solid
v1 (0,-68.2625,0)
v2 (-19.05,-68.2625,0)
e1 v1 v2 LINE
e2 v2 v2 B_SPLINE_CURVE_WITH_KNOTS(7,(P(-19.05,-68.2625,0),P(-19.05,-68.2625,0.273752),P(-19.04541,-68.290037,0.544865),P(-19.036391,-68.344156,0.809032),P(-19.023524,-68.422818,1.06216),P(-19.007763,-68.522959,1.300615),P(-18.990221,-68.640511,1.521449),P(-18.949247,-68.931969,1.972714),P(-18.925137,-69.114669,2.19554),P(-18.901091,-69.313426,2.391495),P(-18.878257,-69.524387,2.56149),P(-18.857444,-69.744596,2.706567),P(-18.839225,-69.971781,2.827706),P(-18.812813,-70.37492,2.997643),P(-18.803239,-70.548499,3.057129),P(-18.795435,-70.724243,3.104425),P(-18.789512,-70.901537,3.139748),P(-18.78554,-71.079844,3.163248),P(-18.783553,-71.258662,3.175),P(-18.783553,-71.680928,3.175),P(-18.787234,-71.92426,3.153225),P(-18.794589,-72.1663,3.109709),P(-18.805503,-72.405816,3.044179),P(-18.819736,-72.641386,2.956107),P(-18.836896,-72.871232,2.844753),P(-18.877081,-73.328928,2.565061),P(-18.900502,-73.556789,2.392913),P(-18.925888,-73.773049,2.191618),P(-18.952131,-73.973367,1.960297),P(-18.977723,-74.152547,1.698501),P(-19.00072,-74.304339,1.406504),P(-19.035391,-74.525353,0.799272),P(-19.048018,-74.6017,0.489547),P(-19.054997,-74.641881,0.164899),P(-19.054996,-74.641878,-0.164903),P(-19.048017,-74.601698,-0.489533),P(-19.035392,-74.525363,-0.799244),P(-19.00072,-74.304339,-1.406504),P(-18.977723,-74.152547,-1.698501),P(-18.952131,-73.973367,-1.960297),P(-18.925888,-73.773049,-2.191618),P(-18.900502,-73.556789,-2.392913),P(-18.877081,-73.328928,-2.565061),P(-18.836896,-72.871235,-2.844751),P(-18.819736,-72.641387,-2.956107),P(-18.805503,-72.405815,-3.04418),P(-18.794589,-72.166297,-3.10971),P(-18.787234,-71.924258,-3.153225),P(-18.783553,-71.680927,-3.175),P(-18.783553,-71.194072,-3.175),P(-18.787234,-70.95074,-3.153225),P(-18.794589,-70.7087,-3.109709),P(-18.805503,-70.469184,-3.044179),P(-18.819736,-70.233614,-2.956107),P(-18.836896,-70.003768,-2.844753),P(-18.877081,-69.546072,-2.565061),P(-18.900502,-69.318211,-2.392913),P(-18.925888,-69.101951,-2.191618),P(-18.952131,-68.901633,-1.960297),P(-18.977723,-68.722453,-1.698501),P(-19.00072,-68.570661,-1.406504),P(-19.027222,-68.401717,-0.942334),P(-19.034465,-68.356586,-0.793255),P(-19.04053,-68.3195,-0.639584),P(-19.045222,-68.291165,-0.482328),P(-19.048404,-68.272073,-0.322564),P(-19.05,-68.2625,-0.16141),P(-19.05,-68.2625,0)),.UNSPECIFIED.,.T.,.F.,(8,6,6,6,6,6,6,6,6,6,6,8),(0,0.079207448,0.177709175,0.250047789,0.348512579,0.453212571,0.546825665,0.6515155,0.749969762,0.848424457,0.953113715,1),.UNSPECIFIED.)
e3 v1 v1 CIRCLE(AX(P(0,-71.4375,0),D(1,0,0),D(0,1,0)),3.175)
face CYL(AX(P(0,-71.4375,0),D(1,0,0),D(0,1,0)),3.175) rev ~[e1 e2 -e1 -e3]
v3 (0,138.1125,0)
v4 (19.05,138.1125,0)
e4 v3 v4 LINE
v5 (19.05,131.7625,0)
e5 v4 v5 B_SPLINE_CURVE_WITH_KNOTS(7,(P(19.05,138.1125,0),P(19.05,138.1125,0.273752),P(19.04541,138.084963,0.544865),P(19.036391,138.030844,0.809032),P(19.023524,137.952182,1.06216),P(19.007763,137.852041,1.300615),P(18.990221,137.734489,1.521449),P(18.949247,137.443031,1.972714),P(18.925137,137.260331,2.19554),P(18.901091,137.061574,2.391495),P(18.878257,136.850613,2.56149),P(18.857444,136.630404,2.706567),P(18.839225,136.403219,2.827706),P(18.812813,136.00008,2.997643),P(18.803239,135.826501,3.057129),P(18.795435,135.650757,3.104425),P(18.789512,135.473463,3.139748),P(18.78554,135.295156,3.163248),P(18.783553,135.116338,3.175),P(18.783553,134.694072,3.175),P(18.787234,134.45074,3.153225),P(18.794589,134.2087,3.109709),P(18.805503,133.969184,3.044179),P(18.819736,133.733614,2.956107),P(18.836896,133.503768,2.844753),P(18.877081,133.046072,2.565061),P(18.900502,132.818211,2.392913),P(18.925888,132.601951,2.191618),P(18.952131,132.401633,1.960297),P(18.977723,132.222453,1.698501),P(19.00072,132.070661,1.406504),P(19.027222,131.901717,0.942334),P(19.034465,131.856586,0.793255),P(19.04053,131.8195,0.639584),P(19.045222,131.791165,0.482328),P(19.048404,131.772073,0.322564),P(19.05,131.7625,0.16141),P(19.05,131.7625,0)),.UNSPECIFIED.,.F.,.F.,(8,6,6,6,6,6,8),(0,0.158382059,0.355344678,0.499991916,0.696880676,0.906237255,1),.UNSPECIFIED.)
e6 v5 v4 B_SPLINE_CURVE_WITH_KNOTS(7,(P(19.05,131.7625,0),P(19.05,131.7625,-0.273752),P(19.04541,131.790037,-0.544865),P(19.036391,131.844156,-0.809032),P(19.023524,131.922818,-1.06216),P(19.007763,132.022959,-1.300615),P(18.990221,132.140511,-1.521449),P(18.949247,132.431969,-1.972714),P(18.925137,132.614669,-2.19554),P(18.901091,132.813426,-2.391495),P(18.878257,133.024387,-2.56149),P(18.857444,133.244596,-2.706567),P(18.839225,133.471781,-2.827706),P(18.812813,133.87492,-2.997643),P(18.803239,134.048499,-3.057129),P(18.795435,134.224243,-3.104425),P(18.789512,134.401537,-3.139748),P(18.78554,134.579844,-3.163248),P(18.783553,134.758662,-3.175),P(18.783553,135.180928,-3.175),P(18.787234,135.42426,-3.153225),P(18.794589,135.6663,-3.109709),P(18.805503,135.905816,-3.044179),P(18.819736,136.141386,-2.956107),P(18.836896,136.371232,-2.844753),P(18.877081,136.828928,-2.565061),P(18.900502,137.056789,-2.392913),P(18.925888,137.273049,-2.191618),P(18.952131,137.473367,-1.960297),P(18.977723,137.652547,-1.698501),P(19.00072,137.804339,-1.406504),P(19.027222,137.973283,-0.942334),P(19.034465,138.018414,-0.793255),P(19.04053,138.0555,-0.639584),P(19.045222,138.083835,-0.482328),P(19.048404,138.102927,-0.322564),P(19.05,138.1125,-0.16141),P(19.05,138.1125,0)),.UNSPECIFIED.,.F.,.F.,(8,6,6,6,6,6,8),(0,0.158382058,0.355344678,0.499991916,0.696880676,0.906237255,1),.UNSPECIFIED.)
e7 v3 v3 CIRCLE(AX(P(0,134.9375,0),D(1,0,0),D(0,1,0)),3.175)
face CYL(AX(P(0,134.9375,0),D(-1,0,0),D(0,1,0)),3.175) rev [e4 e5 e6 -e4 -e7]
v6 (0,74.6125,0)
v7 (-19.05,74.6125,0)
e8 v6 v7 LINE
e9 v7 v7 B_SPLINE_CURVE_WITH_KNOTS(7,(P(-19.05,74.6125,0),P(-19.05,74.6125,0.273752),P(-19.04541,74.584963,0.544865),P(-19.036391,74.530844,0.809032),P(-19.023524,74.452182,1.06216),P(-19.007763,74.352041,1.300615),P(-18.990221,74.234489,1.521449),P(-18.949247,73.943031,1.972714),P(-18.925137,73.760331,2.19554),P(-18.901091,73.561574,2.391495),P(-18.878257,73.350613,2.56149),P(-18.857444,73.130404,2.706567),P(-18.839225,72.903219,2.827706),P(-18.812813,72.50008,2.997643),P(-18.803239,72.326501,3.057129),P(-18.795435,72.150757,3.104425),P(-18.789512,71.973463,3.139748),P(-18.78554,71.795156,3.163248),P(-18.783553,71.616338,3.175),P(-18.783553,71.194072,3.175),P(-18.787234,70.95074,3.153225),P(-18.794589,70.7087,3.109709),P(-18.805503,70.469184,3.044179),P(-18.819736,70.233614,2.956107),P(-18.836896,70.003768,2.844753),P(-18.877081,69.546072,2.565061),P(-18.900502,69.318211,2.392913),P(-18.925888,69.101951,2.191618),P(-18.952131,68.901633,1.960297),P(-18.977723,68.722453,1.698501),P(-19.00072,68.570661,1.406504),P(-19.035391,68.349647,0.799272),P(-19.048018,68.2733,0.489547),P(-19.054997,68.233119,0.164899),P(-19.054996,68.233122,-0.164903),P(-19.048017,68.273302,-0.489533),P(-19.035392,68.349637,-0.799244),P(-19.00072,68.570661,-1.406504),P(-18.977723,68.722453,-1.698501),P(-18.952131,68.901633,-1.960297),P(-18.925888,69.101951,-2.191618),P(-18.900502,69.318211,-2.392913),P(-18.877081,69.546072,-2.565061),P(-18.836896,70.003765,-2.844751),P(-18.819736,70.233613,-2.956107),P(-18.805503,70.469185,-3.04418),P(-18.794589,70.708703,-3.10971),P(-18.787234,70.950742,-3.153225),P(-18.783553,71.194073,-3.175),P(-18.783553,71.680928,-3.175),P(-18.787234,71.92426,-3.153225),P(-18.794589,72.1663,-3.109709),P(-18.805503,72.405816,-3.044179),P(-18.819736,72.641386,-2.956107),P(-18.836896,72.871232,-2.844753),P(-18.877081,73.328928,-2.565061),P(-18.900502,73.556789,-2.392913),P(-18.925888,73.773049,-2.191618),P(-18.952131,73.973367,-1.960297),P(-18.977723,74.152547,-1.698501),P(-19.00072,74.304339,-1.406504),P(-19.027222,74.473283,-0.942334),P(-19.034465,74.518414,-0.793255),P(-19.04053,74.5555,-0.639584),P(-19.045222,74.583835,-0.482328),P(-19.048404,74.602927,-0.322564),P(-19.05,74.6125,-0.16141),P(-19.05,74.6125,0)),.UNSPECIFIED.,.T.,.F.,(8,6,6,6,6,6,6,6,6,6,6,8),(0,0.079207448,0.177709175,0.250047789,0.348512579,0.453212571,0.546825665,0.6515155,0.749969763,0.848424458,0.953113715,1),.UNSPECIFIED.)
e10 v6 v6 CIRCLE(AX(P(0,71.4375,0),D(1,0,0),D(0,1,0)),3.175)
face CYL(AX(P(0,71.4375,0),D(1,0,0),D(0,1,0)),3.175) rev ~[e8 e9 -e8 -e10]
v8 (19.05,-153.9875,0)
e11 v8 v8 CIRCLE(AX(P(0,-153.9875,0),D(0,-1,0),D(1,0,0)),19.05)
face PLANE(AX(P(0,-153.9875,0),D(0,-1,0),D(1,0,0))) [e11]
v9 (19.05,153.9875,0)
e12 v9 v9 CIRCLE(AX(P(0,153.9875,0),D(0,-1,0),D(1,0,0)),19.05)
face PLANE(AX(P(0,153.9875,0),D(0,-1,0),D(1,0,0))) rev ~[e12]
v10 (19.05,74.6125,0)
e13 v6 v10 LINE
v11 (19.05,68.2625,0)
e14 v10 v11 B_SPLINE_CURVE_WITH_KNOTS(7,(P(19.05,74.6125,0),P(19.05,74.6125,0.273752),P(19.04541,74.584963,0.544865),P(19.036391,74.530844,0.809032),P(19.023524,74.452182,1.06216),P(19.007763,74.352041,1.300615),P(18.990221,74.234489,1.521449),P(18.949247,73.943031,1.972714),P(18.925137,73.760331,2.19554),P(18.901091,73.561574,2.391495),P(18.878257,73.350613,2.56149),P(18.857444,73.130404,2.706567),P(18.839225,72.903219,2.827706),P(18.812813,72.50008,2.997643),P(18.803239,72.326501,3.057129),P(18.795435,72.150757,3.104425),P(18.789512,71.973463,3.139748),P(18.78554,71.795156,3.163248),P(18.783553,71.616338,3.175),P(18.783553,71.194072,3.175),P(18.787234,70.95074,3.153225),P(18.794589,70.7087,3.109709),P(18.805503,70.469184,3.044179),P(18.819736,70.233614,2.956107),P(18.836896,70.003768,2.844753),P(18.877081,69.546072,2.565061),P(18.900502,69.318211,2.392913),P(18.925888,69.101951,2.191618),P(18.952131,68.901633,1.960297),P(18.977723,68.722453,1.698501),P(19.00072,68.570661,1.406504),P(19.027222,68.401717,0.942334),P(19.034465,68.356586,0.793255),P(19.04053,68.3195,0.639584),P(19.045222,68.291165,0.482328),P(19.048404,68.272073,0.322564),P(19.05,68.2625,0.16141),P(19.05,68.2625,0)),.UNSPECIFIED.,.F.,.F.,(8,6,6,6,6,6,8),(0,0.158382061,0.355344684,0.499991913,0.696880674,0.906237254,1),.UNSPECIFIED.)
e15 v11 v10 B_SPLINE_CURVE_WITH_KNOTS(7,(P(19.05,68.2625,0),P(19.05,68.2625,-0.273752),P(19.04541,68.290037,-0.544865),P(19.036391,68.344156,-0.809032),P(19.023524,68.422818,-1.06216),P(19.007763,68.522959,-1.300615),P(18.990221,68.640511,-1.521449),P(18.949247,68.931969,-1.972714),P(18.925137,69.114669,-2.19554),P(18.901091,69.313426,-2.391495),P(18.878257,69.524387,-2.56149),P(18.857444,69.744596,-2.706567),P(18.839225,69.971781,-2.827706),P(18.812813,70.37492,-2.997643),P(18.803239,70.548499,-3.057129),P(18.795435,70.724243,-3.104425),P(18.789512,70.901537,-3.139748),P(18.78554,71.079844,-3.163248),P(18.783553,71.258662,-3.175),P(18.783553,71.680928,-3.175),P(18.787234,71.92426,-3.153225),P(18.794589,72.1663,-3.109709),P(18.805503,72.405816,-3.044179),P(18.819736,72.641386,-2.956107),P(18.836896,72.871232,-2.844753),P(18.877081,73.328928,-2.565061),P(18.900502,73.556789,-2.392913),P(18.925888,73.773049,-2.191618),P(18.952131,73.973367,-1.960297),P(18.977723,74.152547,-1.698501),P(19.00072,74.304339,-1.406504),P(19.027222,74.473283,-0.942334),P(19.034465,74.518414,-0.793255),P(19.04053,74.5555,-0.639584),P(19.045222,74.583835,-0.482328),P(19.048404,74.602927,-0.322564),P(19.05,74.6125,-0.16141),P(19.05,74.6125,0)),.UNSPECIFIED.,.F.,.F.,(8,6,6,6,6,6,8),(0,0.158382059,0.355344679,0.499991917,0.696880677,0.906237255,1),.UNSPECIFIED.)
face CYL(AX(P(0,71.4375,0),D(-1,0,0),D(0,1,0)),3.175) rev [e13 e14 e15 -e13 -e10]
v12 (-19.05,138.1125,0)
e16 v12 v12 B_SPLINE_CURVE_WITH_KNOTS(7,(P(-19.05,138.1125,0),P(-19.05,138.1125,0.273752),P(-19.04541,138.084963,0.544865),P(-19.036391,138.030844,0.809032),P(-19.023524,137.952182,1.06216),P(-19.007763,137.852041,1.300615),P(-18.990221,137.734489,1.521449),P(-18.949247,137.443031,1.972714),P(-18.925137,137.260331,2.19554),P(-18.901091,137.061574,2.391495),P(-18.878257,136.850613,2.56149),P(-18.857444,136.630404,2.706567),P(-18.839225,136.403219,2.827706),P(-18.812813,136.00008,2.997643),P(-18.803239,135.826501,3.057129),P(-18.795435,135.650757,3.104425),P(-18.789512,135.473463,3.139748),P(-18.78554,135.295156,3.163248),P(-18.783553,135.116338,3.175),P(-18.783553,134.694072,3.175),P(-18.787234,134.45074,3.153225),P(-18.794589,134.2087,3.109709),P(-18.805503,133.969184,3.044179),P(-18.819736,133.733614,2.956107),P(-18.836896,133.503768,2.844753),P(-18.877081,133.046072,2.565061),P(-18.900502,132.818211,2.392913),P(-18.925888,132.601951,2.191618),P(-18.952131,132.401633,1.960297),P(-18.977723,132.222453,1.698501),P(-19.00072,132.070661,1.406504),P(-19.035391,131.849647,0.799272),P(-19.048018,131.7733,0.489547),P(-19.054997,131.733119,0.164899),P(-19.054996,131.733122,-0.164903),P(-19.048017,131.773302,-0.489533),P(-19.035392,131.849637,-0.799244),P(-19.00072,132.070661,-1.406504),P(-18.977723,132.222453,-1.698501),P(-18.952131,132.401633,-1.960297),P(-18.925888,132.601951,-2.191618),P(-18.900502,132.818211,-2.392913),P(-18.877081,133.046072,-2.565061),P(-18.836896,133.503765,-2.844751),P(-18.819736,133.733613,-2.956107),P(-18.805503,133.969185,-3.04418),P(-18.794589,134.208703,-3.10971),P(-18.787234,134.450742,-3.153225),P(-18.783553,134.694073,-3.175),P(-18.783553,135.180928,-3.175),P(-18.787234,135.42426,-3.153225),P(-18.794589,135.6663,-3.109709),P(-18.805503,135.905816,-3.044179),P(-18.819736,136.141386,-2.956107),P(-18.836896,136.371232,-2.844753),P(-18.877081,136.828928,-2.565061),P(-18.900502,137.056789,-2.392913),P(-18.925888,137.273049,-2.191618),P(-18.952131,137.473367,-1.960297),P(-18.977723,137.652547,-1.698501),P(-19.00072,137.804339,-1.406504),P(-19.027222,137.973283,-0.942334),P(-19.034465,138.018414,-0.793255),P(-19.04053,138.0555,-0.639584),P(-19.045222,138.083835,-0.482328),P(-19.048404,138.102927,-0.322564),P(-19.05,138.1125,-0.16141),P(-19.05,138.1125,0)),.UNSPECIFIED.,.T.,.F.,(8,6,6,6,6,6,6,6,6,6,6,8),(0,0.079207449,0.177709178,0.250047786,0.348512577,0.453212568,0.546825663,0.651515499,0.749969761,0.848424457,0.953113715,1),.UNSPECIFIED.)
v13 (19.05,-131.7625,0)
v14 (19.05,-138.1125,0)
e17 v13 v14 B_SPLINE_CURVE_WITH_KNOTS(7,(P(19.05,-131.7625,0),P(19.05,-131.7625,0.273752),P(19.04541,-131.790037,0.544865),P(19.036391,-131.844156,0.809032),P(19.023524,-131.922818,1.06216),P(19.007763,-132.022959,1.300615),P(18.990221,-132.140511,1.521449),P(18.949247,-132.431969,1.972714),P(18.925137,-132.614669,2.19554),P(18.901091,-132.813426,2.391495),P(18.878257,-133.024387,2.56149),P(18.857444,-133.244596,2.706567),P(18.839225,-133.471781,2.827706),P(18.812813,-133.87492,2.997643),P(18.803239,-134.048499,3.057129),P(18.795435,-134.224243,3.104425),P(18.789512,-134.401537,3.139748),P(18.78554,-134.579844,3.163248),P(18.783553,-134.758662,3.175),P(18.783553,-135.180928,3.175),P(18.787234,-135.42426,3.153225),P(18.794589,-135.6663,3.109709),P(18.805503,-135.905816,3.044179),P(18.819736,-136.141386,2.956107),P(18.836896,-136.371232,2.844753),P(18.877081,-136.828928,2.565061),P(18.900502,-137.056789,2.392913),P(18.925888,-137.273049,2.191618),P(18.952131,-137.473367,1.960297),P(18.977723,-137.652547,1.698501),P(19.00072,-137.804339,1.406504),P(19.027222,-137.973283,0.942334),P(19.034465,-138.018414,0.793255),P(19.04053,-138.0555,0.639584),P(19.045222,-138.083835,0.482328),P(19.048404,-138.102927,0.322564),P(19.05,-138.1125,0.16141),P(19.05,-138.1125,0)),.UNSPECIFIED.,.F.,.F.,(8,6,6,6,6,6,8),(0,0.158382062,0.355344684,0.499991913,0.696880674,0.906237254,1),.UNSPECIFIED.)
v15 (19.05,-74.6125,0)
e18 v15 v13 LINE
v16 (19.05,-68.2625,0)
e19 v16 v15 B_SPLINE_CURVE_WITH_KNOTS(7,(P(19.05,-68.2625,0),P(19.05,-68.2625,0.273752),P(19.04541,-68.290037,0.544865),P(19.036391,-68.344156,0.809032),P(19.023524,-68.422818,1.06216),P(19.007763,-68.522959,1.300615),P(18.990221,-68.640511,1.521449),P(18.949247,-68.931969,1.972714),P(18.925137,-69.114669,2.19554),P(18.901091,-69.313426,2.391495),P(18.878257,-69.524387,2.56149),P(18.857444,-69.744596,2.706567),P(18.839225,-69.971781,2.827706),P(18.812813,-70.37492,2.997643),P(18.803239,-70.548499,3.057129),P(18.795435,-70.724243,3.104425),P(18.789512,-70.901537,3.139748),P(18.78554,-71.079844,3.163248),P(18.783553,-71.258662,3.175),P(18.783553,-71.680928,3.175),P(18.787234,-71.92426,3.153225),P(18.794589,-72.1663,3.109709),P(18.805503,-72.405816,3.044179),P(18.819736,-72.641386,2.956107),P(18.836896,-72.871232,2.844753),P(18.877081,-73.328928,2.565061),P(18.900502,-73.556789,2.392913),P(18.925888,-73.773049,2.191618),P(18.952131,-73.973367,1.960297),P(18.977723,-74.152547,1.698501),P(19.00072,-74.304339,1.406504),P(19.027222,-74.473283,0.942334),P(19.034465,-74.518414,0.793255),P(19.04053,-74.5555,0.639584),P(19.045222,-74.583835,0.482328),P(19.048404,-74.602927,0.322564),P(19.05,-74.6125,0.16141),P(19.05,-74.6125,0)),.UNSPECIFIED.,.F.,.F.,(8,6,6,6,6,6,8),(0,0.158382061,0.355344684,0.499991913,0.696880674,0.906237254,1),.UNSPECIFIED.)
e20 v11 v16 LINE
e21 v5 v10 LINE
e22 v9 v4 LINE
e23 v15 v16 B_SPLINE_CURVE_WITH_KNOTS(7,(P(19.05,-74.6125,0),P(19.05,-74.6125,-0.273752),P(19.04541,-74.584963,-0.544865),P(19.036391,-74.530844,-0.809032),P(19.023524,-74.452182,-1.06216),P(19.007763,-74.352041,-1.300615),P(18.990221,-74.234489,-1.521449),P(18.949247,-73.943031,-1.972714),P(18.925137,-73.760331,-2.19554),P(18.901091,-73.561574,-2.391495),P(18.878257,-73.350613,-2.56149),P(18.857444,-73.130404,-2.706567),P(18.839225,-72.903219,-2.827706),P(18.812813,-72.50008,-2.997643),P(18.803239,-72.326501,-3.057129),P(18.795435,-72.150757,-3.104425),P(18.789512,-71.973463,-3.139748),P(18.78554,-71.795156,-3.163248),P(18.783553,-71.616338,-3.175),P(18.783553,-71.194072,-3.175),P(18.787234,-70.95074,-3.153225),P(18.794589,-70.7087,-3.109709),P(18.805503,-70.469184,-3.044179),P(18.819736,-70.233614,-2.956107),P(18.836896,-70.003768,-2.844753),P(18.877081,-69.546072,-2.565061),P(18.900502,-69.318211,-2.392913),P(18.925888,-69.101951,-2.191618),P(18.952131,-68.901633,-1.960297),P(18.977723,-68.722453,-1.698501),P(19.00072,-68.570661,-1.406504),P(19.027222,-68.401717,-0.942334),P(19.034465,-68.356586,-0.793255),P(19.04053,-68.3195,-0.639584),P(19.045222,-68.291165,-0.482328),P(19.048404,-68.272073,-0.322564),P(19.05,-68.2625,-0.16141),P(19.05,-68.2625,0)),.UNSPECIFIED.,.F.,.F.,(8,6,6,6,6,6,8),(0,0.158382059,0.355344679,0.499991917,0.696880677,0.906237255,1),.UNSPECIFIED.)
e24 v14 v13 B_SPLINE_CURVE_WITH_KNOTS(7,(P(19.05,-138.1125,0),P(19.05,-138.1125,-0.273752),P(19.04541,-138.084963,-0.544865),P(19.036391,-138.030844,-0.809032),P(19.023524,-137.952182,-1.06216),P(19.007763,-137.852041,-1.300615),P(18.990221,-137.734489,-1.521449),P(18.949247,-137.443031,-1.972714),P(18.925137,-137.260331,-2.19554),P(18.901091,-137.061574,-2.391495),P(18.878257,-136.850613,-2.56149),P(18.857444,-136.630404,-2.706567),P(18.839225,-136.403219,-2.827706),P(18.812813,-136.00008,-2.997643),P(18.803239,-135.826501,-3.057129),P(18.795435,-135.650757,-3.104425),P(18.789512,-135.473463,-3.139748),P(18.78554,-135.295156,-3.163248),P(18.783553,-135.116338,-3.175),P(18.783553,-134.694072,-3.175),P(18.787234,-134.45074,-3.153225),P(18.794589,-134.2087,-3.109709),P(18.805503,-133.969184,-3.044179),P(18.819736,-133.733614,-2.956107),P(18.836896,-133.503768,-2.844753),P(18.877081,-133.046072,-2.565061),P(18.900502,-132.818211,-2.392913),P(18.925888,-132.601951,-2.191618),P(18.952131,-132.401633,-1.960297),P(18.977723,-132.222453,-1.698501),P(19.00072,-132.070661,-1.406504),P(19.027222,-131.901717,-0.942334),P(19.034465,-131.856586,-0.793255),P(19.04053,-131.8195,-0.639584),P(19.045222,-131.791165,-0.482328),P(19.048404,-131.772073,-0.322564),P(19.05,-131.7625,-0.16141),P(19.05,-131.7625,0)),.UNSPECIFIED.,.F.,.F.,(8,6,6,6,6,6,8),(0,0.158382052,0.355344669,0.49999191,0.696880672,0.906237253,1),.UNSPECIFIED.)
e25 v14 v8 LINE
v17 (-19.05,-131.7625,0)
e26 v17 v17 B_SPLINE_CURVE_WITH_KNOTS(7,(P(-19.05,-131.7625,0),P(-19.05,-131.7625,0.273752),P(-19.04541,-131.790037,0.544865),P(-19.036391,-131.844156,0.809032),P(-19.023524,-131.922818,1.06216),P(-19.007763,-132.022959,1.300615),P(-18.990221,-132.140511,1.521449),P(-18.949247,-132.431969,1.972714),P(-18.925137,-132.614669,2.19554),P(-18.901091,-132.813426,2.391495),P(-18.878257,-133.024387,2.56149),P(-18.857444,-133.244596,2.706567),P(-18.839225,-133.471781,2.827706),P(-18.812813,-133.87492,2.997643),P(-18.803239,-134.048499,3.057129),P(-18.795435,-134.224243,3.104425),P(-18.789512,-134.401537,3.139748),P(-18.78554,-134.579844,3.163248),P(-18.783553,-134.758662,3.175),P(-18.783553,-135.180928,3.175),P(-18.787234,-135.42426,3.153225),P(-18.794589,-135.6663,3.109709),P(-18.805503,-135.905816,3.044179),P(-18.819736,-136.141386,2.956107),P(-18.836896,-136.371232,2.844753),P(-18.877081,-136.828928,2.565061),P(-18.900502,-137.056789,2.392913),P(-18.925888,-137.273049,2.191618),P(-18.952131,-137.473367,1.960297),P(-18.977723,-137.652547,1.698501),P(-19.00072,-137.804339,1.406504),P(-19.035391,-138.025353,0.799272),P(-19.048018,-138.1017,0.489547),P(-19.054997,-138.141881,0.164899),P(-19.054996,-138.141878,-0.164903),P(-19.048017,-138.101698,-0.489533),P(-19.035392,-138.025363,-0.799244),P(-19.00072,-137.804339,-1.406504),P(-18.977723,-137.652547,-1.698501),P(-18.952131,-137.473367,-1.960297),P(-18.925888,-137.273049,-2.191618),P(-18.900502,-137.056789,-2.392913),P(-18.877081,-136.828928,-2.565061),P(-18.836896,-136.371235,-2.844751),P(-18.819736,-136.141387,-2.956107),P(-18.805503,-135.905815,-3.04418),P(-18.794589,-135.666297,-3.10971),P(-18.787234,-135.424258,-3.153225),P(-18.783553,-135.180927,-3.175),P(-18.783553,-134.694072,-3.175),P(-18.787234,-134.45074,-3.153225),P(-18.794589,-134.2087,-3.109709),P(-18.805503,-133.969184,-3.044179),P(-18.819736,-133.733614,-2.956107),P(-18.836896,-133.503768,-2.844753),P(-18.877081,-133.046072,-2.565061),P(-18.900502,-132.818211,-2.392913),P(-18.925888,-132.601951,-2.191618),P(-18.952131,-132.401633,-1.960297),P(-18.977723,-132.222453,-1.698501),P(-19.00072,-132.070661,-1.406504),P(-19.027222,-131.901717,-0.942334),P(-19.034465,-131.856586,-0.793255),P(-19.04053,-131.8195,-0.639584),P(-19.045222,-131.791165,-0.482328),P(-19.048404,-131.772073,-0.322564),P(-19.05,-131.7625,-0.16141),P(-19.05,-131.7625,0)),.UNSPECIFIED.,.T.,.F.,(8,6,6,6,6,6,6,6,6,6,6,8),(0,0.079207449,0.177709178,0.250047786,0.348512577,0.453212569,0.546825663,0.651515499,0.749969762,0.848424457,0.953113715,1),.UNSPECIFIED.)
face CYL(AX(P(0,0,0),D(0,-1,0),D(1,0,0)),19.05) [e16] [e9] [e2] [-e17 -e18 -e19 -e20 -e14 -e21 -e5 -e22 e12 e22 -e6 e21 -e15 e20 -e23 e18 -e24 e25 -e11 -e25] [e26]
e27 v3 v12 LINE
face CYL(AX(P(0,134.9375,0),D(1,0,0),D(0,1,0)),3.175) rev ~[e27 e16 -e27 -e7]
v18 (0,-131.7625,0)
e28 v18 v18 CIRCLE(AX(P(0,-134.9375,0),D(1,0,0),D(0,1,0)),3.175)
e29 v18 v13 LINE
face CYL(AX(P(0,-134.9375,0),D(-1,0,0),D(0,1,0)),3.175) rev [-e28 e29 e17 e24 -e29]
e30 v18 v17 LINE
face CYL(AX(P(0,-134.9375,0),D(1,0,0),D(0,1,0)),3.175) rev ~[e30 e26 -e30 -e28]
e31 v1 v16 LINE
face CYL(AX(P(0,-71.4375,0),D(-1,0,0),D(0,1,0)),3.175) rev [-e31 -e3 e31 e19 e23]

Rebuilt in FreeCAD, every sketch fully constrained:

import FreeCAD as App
import Part
import Sketcher

V = App.Vector
Q = App.Units.Quantity

doc = App.newDocument("Part")
body = doc.addObject("PartDesign::Body", "Body")

sketch1 = body.newObject("Sketcher::SketchObject", "Sketch")
sketch1.AttachmentSupport = (doc.getObject("XZ_Plane"), [""])
sketch1.MapMode = "FlatFace"
sketch1.addGeometry(Part.Circle(V(0, 0, 0), V(0, 0, 1), 19), False)
sketch1.addConstraint([
    Sketcher.Constraint("Coincident", 0, 3, -1, 1),
    Sketcher.Constraint("Diameter", 0, Q("1.5 in")),
])
pad1 = body.newObject("PartDesign::Pad", "Pad")
pad1.Profile = sketch1
pad1.Length = Q("12.125 in")
pad1.Midplane = True

sketch2 = body.newObject("Sketcher::SketchObject", "Sketch001")
sketch2.AttachmentSupport = (doc.getObject("YZ_Plane"), [""])
sketch2.MapMode = "FlatFace"
sketch2.addGeometry([
    Part.Circle(V(-134.9, 0, 0), V(0, 0, 1), 3.2),
    Part.Circle(V(134.9, 0, 0), V(0, 0, 1), 3.2),
    Part.Circle(V(-71.4, 0, 0), V(0, 0, 1), 3.2),
    Part.Circle(V(71.4, 0, 0), V(0, 0, 1), 3.2),
], False)
sketch2.addConstraint([
    Sketcher.Constraint("Equal", 0, 1),
    Sketcher.Constraint("Equal", 1, 2),
    Sketcher.Constraint("Equal", 2, 3),
    Sketcher.Constraint("Symmetric", 0, 3, 1, 3, -1, 1),
    Sketcher.Constraint("Symmetric", 2, 3, 3, 3, -1, 1),
    Sketcher.Constraint("PointOnObject", 0, 3, -1),
    Sketcher.Constraint("PointOnObject", 2, 3, -1),
    Sketcher.Constraint("Diameter", 0, Q("0.25 in")),
    Sketcher.Constraint("DistanceX", 0, 3, 2, 3, Q("2.5 in")),
    Sketcher.Constraint("DistanceX", 0, 3, -1, 1, Q("5.3125 in")),
])
pocket1 = body.newObject("PartDesign::Pocket", "Pocket")
pocket1.Profile = sketch2
pocket1.Type = "ThroughAll"
pocket1.Midplane = True

doc.recompute()
